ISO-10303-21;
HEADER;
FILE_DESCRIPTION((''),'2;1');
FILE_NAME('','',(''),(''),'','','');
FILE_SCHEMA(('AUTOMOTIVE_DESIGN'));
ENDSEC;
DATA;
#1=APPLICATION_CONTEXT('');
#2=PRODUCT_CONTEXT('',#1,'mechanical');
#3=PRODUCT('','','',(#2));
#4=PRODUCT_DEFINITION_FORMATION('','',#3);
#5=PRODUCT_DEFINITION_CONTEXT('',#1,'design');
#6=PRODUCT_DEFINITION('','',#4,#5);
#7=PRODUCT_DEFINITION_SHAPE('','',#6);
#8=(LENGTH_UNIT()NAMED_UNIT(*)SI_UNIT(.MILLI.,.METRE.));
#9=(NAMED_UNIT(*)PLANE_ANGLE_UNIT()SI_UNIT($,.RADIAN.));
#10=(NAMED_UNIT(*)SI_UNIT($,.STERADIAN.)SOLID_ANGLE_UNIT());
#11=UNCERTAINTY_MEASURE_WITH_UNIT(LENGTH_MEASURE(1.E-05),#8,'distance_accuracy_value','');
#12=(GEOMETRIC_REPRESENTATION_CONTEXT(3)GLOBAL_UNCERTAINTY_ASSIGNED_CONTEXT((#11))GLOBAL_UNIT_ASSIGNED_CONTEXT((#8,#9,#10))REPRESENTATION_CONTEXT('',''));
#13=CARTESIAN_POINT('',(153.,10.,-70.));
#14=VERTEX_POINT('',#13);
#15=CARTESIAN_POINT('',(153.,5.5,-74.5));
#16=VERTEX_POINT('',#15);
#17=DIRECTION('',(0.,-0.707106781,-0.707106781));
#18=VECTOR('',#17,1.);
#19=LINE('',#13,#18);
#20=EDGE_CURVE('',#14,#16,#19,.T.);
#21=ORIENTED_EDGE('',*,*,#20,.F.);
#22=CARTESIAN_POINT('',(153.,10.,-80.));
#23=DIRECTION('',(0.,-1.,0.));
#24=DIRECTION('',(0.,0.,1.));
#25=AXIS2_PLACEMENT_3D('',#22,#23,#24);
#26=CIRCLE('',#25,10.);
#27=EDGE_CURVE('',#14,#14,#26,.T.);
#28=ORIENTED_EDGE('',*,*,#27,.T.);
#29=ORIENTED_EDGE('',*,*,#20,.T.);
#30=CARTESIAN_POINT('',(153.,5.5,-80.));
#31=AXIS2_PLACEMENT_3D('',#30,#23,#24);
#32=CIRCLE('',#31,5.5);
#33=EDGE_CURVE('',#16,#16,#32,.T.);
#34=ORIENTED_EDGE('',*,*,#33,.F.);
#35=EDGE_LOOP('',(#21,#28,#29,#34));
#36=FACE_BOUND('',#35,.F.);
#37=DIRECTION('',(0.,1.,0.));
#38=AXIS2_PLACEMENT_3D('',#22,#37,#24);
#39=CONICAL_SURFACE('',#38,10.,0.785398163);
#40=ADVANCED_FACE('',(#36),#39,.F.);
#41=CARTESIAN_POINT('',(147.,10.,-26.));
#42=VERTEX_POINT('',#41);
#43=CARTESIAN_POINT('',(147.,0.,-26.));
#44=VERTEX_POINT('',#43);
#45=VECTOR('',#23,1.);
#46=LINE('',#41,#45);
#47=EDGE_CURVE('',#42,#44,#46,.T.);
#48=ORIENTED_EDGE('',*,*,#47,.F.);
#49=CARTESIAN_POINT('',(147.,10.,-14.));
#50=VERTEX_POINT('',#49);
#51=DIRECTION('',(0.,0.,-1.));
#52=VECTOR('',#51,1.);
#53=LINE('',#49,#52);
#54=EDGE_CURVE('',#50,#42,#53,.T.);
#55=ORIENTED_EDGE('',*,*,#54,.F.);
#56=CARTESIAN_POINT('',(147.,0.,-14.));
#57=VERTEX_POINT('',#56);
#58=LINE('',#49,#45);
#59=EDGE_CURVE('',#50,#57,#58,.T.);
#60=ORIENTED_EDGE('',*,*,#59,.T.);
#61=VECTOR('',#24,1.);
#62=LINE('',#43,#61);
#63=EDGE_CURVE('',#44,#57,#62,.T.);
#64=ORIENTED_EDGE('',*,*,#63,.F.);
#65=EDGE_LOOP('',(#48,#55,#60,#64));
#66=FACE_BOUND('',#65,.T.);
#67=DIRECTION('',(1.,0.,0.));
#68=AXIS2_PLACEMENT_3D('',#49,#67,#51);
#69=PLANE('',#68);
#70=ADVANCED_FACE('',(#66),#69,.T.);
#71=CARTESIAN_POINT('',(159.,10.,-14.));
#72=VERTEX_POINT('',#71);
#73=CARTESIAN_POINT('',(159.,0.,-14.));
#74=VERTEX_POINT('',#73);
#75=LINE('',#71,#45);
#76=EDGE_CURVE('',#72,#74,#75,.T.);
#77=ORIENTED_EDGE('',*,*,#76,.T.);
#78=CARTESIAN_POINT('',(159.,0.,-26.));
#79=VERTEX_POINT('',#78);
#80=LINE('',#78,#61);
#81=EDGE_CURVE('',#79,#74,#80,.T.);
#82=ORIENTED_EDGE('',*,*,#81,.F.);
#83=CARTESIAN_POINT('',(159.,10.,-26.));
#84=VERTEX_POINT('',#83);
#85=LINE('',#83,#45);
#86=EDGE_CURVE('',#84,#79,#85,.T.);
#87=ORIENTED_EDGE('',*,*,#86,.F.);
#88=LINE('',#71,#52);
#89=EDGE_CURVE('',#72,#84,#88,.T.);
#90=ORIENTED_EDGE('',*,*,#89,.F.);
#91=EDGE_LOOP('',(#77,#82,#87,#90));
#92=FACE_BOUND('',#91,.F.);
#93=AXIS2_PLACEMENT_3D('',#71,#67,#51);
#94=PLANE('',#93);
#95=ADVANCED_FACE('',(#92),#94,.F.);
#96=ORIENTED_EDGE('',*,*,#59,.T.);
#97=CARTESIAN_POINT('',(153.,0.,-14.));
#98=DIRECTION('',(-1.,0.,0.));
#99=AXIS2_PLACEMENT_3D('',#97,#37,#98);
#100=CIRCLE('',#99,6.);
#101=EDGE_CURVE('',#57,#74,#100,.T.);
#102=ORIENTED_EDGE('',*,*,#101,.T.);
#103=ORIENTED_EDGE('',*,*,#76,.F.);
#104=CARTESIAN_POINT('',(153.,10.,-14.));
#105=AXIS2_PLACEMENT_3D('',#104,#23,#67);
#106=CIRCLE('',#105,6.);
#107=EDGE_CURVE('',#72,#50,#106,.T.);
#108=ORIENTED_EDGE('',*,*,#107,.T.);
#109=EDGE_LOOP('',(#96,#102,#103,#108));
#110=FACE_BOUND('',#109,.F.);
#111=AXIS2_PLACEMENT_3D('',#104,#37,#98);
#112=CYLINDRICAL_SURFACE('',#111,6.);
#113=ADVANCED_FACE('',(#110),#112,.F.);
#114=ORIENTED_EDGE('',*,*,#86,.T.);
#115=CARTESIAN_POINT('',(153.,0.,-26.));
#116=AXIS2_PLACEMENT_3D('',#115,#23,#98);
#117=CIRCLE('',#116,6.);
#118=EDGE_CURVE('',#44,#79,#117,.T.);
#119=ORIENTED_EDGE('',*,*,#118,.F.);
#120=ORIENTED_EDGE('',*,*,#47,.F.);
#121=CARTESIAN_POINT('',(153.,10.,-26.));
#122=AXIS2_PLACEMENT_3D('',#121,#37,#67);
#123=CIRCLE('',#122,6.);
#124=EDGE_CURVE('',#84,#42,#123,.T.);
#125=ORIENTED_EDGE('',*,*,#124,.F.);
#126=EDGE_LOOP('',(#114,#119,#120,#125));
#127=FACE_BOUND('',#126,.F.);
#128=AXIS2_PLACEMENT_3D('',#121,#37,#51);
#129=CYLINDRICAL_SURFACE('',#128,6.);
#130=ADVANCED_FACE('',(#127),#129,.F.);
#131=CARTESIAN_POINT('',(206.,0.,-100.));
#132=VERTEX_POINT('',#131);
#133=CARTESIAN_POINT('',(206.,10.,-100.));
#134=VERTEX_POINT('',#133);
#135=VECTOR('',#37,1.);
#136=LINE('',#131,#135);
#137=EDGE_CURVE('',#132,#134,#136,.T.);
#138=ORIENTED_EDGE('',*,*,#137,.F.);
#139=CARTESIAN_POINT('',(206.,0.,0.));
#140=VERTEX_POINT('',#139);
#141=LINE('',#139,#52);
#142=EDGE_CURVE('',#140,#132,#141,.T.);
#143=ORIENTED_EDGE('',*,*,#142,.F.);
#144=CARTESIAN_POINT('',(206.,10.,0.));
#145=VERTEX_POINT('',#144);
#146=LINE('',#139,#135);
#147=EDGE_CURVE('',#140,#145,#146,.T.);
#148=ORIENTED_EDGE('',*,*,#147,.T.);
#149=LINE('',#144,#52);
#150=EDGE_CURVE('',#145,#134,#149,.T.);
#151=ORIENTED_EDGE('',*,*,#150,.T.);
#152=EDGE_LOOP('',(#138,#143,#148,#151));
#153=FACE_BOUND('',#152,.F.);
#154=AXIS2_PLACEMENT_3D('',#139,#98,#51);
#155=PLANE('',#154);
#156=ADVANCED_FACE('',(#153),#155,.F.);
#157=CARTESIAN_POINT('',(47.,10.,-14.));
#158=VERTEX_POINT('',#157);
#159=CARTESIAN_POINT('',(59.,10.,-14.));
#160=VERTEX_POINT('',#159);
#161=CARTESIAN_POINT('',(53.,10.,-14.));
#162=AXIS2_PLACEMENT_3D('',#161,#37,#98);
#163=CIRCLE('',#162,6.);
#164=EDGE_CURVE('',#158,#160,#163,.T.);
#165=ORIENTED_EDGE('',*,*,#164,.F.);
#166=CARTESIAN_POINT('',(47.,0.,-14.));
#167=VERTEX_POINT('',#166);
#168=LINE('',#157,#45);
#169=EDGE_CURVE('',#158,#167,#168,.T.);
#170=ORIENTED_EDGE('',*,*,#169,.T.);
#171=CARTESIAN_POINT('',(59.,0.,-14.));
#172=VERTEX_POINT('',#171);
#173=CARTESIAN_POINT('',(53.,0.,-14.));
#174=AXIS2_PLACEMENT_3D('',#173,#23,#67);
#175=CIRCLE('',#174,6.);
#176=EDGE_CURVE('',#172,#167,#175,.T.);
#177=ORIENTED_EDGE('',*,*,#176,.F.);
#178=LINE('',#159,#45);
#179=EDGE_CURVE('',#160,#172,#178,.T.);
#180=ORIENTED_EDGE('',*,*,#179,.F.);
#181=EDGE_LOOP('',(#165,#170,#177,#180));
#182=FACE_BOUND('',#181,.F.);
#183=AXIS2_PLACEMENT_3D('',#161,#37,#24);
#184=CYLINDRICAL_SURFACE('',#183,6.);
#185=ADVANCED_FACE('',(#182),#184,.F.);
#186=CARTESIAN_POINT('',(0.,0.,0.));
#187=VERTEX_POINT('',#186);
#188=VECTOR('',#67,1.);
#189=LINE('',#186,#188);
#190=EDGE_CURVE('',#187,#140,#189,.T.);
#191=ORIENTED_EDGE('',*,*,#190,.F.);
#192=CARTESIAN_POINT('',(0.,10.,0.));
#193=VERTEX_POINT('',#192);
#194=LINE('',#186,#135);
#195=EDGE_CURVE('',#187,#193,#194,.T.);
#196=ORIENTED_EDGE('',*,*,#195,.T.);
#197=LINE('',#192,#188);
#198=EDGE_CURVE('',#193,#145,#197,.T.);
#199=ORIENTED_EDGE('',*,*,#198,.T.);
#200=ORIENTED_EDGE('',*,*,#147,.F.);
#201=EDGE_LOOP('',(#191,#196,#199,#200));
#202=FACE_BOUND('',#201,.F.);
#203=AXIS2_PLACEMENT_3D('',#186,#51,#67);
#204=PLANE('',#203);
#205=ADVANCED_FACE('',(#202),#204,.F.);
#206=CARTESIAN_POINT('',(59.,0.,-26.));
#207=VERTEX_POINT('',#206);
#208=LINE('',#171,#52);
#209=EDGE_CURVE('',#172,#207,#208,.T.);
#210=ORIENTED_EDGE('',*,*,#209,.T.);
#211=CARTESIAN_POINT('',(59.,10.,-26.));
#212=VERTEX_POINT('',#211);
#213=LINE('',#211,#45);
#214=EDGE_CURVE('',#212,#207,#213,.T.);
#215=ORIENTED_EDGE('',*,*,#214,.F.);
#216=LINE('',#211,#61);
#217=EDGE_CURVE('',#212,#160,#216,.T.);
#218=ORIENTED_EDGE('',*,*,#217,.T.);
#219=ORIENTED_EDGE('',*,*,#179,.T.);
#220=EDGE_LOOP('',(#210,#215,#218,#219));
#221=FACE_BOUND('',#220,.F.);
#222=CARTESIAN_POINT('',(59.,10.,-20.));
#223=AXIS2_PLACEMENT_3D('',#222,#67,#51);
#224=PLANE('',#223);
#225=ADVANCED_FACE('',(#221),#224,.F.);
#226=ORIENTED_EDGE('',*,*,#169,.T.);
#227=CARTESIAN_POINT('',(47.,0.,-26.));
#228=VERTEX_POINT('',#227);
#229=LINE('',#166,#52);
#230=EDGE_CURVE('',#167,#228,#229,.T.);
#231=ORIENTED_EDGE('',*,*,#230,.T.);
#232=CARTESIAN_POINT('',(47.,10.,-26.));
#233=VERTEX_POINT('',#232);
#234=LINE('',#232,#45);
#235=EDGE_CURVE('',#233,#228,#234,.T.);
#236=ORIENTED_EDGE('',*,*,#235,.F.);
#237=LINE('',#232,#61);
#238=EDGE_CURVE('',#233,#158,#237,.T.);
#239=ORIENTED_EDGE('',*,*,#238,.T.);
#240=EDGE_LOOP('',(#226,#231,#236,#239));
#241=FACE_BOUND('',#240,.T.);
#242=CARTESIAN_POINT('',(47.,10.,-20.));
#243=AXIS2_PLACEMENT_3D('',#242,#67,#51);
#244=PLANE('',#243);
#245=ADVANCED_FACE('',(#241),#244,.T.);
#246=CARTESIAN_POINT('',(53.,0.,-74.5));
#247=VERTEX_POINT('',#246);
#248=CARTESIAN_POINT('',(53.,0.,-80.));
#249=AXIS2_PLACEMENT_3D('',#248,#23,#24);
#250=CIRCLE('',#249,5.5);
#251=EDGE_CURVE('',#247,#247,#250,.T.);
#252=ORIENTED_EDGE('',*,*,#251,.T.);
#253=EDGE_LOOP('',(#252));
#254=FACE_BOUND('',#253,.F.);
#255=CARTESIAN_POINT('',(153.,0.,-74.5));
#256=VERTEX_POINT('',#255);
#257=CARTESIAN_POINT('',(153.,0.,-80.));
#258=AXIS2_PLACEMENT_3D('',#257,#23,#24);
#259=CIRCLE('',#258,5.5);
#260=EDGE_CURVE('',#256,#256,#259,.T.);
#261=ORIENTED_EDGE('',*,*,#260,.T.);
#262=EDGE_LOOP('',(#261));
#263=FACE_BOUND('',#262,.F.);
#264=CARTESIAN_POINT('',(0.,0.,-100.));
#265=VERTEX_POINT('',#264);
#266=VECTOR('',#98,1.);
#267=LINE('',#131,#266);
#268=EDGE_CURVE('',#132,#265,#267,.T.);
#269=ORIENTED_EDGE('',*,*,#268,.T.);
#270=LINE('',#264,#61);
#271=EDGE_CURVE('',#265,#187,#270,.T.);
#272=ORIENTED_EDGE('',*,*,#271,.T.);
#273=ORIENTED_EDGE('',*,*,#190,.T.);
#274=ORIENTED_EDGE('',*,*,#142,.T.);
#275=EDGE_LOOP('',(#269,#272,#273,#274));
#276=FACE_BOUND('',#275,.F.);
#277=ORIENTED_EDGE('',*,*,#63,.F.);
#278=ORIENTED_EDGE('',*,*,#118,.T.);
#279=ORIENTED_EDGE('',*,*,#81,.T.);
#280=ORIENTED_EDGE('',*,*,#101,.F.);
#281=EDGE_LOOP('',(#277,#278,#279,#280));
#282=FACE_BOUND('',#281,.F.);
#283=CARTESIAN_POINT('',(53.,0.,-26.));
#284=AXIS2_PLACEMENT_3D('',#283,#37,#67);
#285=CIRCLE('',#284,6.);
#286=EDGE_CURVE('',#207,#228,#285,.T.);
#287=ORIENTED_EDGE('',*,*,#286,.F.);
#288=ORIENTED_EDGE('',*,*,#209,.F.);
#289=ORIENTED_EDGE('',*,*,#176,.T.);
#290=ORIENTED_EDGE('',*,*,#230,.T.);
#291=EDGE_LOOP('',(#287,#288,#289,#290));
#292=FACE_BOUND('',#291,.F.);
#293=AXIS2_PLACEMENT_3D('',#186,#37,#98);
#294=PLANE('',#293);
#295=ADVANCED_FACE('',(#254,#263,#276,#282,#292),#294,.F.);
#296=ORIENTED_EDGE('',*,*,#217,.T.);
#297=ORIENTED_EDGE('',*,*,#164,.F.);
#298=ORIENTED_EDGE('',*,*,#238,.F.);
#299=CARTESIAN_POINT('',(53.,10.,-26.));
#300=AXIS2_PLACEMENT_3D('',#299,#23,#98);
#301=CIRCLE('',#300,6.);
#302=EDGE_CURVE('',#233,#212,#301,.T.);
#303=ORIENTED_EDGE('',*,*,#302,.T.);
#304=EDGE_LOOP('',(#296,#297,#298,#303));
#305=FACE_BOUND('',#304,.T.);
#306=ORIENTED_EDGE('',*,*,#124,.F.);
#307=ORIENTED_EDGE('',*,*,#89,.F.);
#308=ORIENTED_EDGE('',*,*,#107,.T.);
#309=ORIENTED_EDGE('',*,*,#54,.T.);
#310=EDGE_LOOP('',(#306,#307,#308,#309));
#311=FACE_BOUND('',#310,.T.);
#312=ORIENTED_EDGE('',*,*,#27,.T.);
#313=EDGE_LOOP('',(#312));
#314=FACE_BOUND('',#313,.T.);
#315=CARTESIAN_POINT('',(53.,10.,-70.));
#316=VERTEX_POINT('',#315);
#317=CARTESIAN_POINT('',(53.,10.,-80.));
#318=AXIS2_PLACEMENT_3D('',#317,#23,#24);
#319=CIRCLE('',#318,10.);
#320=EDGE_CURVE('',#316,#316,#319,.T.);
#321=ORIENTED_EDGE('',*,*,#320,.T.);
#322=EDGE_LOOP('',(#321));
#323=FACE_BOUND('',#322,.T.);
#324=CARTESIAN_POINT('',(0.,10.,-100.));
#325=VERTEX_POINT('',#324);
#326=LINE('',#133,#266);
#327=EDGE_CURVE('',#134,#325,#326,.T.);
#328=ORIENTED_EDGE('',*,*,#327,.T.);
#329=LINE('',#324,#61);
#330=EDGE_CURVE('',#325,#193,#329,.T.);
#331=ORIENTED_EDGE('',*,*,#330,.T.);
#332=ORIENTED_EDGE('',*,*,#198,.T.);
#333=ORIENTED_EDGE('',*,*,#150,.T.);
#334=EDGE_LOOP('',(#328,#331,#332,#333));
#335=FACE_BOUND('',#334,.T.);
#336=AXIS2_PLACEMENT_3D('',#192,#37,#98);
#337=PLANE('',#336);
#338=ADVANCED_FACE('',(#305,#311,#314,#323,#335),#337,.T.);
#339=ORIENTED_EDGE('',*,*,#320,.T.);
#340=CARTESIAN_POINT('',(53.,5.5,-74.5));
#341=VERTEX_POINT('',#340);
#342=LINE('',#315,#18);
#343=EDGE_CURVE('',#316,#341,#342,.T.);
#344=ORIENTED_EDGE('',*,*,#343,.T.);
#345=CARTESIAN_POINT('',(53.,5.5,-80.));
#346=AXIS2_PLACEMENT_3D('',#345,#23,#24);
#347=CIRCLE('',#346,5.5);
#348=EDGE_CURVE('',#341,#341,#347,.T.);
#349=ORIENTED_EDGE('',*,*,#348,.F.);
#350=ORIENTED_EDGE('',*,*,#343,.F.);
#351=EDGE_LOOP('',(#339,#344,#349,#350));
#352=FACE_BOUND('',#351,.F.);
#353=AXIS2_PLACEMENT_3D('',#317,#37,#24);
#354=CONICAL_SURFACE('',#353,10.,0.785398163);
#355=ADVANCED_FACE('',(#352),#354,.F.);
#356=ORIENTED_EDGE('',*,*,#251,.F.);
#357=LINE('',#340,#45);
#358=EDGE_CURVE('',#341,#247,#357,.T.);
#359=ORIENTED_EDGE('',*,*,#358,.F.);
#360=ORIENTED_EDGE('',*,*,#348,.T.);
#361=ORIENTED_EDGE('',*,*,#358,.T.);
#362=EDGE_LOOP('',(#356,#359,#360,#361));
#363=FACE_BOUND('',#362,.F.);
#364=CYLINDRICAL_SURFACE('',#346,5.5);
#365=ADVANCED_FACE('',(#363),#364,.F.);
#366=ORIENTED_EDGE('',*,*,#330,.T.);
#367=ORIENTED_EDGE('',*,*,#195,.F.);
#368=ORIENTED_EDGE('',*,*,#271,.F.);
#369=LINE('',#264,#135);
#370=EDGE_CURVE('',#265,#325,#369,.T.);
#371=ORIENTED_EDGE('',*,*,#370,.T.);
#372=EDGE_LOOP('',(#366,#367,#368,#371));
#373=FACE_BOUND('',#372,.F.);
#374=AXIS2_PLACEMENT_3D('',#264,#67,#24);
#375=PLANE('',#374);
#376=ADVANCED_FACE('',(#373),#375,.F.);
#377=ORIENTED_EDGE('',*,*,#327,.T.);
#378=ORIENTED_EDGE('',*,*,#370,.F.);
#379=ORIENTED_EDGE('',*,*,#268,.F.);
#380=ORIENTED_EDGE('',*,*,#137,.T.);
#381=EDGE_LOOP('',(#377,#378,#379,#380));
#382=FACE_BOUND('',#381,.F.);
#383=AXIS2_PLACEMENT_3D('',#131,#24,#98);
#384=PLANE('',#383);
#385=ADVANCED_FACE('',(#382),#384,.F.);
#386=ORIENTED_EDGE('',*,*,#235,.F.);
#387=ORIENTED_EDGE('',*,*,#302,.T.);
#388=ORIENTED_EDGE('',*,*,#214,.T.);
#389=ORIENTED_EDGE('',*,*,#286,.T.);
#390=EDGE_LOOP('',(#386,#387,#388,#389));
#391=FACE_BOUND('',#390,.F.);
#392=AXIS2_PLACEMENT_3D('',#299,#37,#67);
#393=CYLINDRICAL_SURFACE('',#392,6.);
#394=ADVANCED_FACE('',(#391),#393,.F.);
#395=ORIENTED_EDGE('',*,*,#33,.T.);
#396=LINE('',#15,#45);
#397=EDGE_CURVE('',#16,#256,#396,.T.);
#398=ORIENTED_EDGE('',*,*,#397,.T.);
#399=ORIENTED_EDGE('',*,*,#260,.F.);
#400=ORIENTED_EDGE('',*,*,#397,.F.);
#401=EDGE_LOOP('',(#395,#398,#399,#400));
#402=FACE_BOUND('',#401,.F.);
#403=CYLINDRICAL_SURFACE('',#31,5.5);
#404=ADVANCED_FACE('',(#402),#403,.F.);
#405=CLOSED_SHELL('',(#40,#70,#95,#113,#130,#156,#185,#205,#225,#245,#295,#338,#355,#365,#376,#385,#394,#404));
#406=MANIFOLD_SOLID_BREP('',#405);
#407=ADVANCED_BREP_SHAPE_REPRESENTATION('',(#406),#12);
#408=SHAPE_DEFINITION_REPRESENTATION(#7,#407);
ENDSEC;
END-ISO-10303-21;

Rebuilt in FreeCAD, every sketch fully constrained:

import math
import FreeCAD as App
import Part
import Sketcher
from FreeCAD import Vector
Q = App.Units.Quantity

doc = App.newDocument("Part")
body = doc.addObject("PartDesign::Body", "Body")

sketch1 = doc.addObject("Sketcher::SketchObject", "Sketch")
body.addObject(sketch1)
sketch1.AttachmentSupport = (doc.XZ_Plane, [""])
sketch1.MapMode = "FlatFace"
sketch1.addGeometry([
    Part.LineSegment(Vector(0, -100, 0), Vector(0, 0, 0)),
    Part.LineSegment(Vector(0, 0, 0), Vector(206, 0, 0)),
    Part.LineSegment(Vector(206, 0, 0), Vector(206, -100, 0)),
    Part.LineSegment(Vector(206, -100, 0), Vector(0, -100, 0)),
], False)
sketch1.addConstraint([
    Sketcher.Constraint("Coincident", 0, 2, 1, 1),
    Sketcher.Constraint("Coincident", 1, 2, 2, 1),
    Sketcher.Constraint("Coincident", 2, 2, 3, 1),
    Sketcher.Constraint("Coincident", 3, 2, 0, 1),
    Sketcher.Constraint("Vertical", 0),
    Sketcher.Constraint("Horizontal", 1),
    Sketcher.Constraint("Vertical", 2),
    Sketcher.Constraint("Horizontal", 3),
    Sketcher.Constraint("Coincident", 0, 2, -1, 1),
    Sketcher.Constraint("DistanceX", 1, 1, 1, 2, Q("206 mm")),
    Sketcher.Constraint("DistanceY", 0, 1, 0, 2, Q("100 mm")),
])
pad1 = doc.addObject("PartDesign::Pad", "Pad")
body.addObject(pad1)
pad1.Profile = sketch1
pad1.Length = 10
pad1.Reversed = True

sketch2 = doc.addObject("Sketcher::SketchObject", "Sketch001")
body.addObject(sketch2)
sketch2.AttachmentSupport = (doc.XZ_Plane, [""])
sketch2.MapMode = "FlatFace"
sketch2.AttachmentOffset = App.Placement(Vector(0, 0, -10), App.Rotation())
sketch2.addGeometry([
    Part.ArcOfCircle(Part.Circle(Vector(153, -14, 0), Vector(0, 0, 1), 6), math.radians(0), math.radians(180)),
    Part.LineSegment(Vector(159, -14, 0), Vector(159, -26, 0)),
    Part.ArcOfCircle(Part.Circle(Vector(153, -26, 0), Vector(0, 0, 1), 6), math.radians(180), math.radians(360)),
    Part.LineSegment(Vector(147, -26, 0), Vector(147, -14, 0)),
    Part.ArcOfCircle(Part.Circle(Vector(53, -26, 0), Vector(0, 0, 1), 6), math.radians(180), math.radians(360)),
    Part.LineSegment(Vector(47, -26, 0), Vector(47, -14, 0)),
    Part.ArcOfCircle(Part.Circle(Vector(53, -14, 0), Vector(0, 0, 1), 6), math.radians(0), math.radians(180)),
    Part.LineSegment(Vector(59, -14, 0), Vector(59, -26, 0)),
], False)
sketch2.addConstraint([
    Sketcher.Constraint("Tangent", 0, 1, 1, 1),
    Sketcher.Constraint("Tangent", 1, 2, 2, 2),
    Sketcher.Constraint("Tangent", 2, 1, 3, 1),
    Sketcher.Constraint("Tangent", 3, 2, 0, 2),
    Sketcher.Constraint("Tangent", 4, 1, 5, 1),
    Sketcher.Constraint("Tangent", 5, 2, 6, 2),
    Sketcher.Constraint("Tangent", 6, 1, 7, 1),
    Sketcher.Constraint("Tangent", 7, 2, 4, 2),
    Sketcher.Constraint("Vertical", 1),
    Sketcher.Constraint("Vertical", 3),
    Sketcher.Constraint("Vertical", 5),
    Sketcher.Constraint("Vertical", 7),
    Sketcher.Constraint("Equal", 2, 4),
    Sketcher.Constraint("Horizontal", 2, 3, 4, 3),
    Sketcher.Constraint("Horizontal", 0, 3, 6, 3),
    Sketcher.Constraint("Radius", 0, Q("6 mm")),
    Sketcher.Constraint("DistanceY", 1, 2, 1, 1, Q("12 mm")),
    Sketcher.Constraint("DistanceX", -1, 1, 0, 3, Q("153 mm")),
    Sketcher.Constraint("DistanceY", 0, 3, -1, 1, Q("14 mm")),
    Sketcher.Constraint("DistanceX", -1, 1, 4, 3, Q("53 mm")),
])
pocket1 = doc.addObject("PartDesign::Pocket", "Pocket")
body.addObject(pocket1)
pocket1.Profile = sketch2
pocket1.Length = 10
pocket1.Reversed = True

sketch3 = doc.addObject("Sketcher::SketchObject", "Sketch002")
body.addObject(sketch3)
sketch3.AttachmentSupport = (doc.XZ_Plane, [""])
sketch3.MapMode = "FlatFace"
sketch3.AttachmentOffset = App.Placement(Vector(0, 0, -10), App.Rotation())
sketch3.addGeometry([
    Part.Circle(Vector(153, -80, 0), Vector(0, 0, 1), 5.5),
    Part.Circle(Vector(53, -80, 0), Vector(0, 0, 1), 5.5),
], False)
sketch3.addConstraint([
    Sketcher.Constraint("Equal", 0, 1),
    Sketcher.Constraint("Horizontal", 0, 3, 1, 3),
    Sketcher.Constraint("Diameter", 0, Q("11 mm")),
    Sketcher.Constraint("DistanceX", -1, 1, 0, 3, Q("153 mm")),
    Sketcher.Constraint("DistanceY", 0, 3, -1, 1, Q("80 mm")),
    Sketcher.Constraint("DistanceX", -1, 1, 1, 3, Q("53 mm")),
])
doc.recompute()
hole = doc.addObject("PartDesign::Hole", "Hole")
body.addObject(hole)
hole.Profile = sketch3
hole.ThreadType = "None"
hole.Diameter = 11
hole.DepthType = "ThroughAll"
hole.HoleCutType = "Countersink"
hole.HoleCutDiameter = 20
hole.HoleCutCountersinkAngle = 90
hole.Reversed = True

doc.recompute()
